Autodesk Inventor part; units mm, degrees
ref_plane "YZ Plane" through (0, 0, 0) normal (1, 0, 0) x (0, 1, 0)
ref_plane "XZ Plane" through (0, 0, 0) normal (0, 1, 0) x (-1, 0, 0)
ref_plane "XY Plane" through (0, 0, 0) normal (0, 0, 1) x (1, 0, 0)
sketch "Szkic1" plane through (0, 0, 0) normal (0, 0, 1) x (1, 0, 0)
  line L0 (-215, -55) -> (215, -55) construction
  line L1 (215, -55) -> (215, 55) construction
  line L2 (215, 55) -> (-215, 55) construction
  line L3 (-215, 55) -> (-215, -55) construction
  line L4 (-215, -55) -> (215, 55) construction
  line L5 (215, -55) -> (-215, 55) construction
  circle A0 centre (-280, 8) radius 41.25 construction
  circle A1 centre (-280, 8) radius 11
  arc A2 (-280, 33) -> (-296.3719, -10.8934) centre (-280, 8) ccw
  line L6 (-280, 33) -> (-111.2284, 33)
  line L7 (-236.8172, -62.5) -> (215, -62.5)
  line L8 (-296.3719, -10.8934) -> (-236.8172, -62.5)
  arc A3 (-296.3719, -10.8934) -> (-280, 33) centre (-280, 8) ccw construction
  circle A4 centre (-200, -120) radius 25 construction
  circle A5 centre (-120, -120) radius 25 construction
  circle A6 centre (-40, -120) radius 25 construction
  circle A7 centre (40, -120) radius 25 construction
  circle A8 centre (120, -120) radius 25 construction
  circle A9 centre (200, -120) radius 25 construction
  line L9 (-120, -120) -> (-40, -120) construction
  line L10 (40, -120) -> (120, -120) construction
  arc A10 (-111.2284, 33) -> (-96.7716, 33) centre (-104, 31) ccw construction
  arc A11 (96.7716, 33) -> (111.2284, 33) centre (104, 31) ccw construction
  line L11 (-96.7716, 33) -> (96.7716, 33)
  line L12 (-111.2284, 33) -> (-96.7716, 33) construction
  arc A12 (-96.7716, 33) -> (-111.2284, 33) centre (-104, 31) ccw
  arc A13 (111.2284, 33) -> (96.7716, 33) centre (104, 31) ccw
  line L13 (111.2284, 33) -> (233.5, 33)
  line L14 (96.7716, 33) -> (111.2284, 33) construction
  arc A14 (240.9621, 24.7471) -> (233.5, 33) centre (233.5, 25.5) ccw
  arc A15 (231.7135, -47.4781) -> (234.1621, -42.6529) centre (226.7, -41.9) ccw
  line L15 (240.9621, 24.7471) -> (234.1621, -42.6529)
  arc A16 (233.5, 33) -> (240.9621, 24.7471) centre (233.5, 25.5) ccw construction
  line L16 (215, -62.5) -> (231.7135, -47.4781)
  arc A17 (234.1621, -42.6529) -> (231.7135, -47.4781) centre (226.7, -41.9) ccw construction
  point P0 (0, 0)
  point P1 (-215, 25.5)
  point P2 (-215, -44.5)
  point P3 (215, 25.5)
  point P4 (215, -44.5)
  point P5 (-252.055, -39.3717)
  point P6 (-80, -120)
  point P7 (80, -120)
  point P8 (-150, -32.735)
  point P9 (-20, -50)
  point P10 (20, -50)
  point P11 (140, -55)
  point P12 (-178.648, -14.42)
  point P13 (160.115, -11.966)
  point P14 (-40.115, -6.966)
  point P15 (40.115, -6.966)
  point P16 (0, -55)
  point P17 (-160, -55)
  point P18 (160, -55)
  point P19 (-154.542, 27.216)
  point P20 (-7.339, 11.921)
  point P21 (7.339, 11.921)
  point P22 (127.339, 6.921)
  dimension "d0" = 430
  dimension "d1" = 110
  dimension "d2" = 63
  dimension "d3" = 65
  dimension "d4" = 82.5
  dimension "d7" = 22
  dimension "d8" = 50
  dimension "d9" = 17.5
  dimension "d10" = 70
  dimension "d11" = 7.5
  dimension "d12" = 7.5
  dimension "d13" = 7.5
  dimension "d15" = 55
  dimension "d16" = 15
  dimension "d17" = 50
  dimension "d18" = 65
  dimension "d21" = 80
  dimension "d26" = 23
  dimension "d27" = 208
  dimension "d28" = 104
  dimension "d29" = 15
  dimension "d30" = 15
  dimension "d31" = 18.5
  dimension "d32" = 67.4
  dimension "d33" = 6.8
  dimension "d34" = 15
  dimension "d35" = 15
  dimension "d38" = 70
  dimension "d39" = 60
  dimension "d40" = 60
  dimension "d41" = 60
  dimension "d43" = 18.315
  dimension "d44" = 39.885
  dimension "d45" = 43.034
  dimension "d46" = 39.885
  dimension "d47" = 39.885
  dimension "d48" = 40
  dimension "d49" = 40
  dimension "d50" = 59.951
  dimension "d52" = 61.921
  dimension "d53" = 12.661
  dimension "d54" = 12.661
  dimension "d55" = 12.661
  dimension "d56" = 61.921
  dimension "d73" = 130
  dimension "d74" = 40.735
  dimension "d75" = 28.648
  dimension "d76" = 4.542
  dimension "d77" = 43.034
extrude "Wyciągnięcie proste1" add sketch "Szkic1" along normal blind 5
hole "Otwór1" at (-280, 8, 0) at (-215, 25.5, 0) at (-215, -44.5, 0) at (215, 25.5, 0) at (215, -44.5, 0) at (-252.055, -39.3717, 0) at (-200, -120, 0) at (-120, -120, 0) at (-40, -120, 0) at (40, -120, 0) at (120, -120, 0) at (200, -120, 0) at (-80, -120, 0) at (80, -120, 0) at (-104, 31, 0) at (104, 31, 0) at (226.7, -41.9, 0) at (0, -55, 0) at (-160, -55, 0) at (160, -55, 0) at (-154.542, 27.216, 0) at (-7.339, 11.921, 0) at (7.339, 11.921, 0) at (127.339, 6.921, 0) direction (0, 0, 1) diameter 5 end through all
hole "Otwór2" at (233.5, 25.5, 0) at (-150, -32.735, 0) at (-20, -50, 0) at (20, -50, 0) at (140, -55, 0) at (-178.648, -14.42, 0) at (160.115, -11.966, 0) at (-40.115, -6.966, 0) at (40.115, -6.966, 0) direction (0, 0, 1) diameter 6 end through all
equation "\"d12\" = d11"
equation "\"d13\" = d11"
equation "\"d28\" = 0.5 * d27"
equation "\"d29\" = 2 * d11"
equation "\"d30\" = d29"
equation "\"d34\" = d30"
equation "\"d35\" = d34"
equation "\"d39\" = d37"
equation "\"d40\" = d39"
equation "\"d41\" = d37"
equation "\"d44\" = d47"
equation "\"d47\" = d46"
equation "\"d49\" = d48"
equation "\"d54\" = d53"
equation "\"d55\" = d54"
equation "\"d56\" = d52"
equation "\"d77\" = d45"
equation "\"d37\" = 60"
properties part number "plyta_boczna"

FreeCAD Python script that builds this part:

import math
import FreeCAD as App
import Part
import Sketcher
from FreeCAD import Vector
Q = App.Units.Quantity

doc = App.newDocument("Part")
body = doc.addObject("PartDesign::Body", "Body")

sketch1 = doc.addObject("Sketcher::SketchObject", "Sketch")
body.addObject(sketch1)
sketch1.AttachmentSupport = (doc.XY_Plane, [""])
sketch1.MapMode = "FlatFace"
sketch1.addGeometry(Part.LineSegment(Vector(-111, 33, 0), Vector(-280, 33, 0)), False)
sketch1.addGeometry(Part.ArcOfCircle(Part.Circle(Vector(-280, 8, 0), Vector(0, 0, 1), 25), math.radians(90), math.radians(229)), False)
sketch1.addGeometry(Part.LineSegment(Vector(-296, -11, 0), Vector(-237, -62, 0)), False)
sketch1.addGeometry(Part.LineSegment(Vector(-237, -62, 0), Vector(215, -62, 0)), False)
sketch1.addGeometry(Part.LineSegment(Vector(215, -62, 0), Vector(232, -47, 0)), False)
sketch1.addGeometry(Part.ArcOfCircle(Part.Circle(Vector(227, -42, 0), Vector(0, 0, 1), 7), math.radians(-48), math.radians(-6)), False)
sketch1.addGeometry(Part.LineSegment(Vector(234, -43, 0), Vector(241, 25, 0)), False)
sketch1.addGeometry(Part.ArcOfCircle(Part.Circle(Vector(234, 26, 0), Vector(0, 0, 1), 8), math.radians(-6), math.radians(90)), False)
sketch1.addGeometry(Part.LineSegment(Vector(234, 33, 0), Vector(111, 33, 0)), False)
sketch1.addGeometry(Part.ArcOfCircle(Part.Circle(Vector(104, 31, 0), Vector(0, 0, 1), 7), math.radians(15), math.radians(165)), False)
sketch1.addGeometry(Part.LineSegment(Vector(97, 33, 0), Vector(-97, 33, 0)), False)
sketch1.addGeometry(Part.ArcOfCircle(Part.Circle(Vector(-104, 31, 0), Vector(0, 0, 1), 7), math.radians(15), math.radians(165)), False)
sketch1.addGeometry(Part.Circle(Vector(-280, 8, 0), Vector(0, 0, 1), 11), False)
sketch1.addConstraint(Sketcher.Constraint("Tangent", 0, 2, 1, 1))
sketch1.addConstraint(Sketcher.Constraint("Tangent", 1, 2, 2, 1))
sketch1.addConstraint(Sketcher.Constraint("Coincident", 2, 2, 3, 1))
sketch1.addConstraint(Sketcher.Constraint("Coincident", 3, 2, 4, 1))
sketch1.addConstraint(Sketcher.Constraint("Tangent", 4, 2, 5, 1))
sketch1.addConstraint(Sketcher.Constraint("Tangent", 5, 2, 6, 1))
sketch1.addConstraint(Sketcher.Constraint("Tangent", 6, 2, 7, 1))
sketch1.addConstraint(Sketcher.Constraint("Tangent", 7, 2, 8, 1))
sketch1.addConstraint(Sketcher.Constraint("Coincident", 8, 2, 9, 1))
sketch1.addConstraint(Sketcher.Constraint("Coincident", 9, 2, 10, 1))
sketch1.addConstraint(Sketcher.Constraint("Coincident", 10, 2, 11, 1))
sketch1.addConstraint(Sketcher.Constraint("Coincident", 11, 2, 0, 1))
sketch1.addConstraint(Sketcher.Constraint("Horizontal", 0))
sketch1.addConstraint(Sketcher.Constraint("Horizontal", 3))
sketch1.addConstraint(Sketcher.Constraint("Horizontal", 8))
sketch1.addConstraint(Sketcher.Constraint("Horizontal", 10))
sketch1.addConstraint(Sketcher.Constraint("Coincident", 12, 3, 1, 3))
sketch1.addConstraint(Sketcher.Constraint("Equal", 5, 7))
sketch1.addConstraint(Sketcher.Constraint("Equal", 7, 9))
sketch1.addConstraint(Sketcher.Constraint("Equal", 9, 11))
sketch1.addConstraint(Sketcher.Constraint("Symmetric", 9, 3, 11, 3, -2))
sketch1.addConstraint(Sketcher.Constraint("Horizontal", 0, 2, 7, 2))
sketch1.addConstraint(Sketcher.Constraint("Horizontal", 8, 2, 9, 2))
sketch1.addConstraint(Sketcher.Constraint("Diameter", 12, Q("22 mm")))
sketch1.addConstraint(Sketcher.Constraint("Radius", 1, Q("25 mm")))
sketch1.addConstraint(Sketcher.Constraint("Radius", 5, Q("7.5 mm")))
sketch1.addConstraint(Sketcher.Constraint("DistanceX", -1, 1, 9, 3, Q("104 mm")))
sketch1.addConstraint(Sketcher.Constraint("DistanceY", 1, 3, 9, 3, Q("23 mm")))
sketch1.addConstraint(Sketcher.Constraint("DistanceX", 5, 3, 7, 3, Q("6.8 mm")))
sketch1.addConstraint(Sketcher.Constraint("DistanceY", 5, 3, 7, 3, Q("67.4 mm")))
sketch1.addConstraint(Sketcher.Constraint("DistanceX", 3, 2, 7, 3, Q("18.5 mm")))
sketch1.addConstraint(Sketcher.Constraint("DistanceX", 1, 3, -1, 1, Q("280 mm")))
sketch1.addConstraint(Sketcher.Constraint("DistanceY", -1, 1, 1, 3, Q("8 mm")))
sketch1.addConstraint(Sketcher.Constraint("DistanceX", -1, 1, 3, 2, Q("215 mm")))
sketch1.addConstraint(Sketcher.Constraint("DistanceY", 3, 2, 7, 3, Q("88 mm")))
sketch1.addConstraint(Sketcher.Constraint("Angle", 2, Q("-40.9103 deg")))
pad1 = doc.addObject("PartDesign::Pad", "Pad")
body.addObject(pad1)
pad1.Profile = sketch1
pad1.Length = 5

sketch2 = doc.addObject("Sketcher::SketchObject", "Sketch001")
body.addObject(sketch2)
sketch2.AttachmentSupport = (doc.XY_Plane, [""])
sketch2.MapMode = "FlatFace"
sketch2.addGeometry(Part.Circle(Vector(-280, 8, 0), Vector(0, 0, 1), 2.5), False)
sketch2.addGeometry(Part.Circle(Vector(-215, 25.5, 0), Vector(0, 0, 1), 2.5), False)
sketch2.addGeometry(Part.Circle(Vector(-215, -44.5, 0), Vector(0, 0, 1), 2.5), False)
sketch2.addGeometry(Part.Circle(Vector(215, 25.5, 0), Vector(0, 0, 1), 2.5), False)
sketch2.addGeometry(Part.Circle(Vector(215, -44.5, 0), Vector(0, 0, 1), 2.5), False)
sketch2.addGeometry(Part.Circle(Vector(-252.1, -39.4, 0), Vector(0, 0, 1), 2.5), False)
sketch2.addGeometry(Part.Circle(Vector(-200, -120, 0), Vector(0, 0, 1), 2.5), False)
sketch2.addGeometry(Part.Circle(Vector(-120, -120, 0), Vector(0, 0, 1), 2.5), False)
sketch2.addGeometry(Part.Circle(Vector(-40, -120, 0), Vector(0, 0, 1), 2.5), False)
sketch2.addGeometry(Part.Circle(Vector(40, -120, 0), Vector(0, 0, 1), 2.5), False)
sketch2.addGeometry(Part.Circle(Vector(120, -120, 0), Vector(0, 0, 1), 2.5), False)
sketch2.addGeometry(Part.Circle(Vector(200, -120, 0), Vector(0, 0, 1), 2.5), False)
sketch2.addGeometry(Part.Circle(Vector(-80, -120, 0), Vector(0, 0, 1), 2.5), False)
sketch2.addGeometry(Part.Circle(Vector(80, -120, 0), Vector(0, 0, 1), 2.5), False)
sketch2.addGeometry(Part.Circle(Vector(-104, 31, 0), Vector(0, 0, 1), 2.5), False)
sketch2.addGeometry(Part.Circle(Vector(104, 31, 0), Vector(0, 0, 1), 2.5), False)
sketch2.addGeometry(Part.Circle(Vector(226.7, -41.9, 0), Vector(0, 0, 1), 2.5), False)
sketch2.addGeometry(Part.Circle(Vector(0, -55, 0), Vector(0, 0, 1), 2.5), False)
sketch2.addGeometry(Part.Circle(Vector(-160, -55, 0), Vector(0, 0, 1), 2.5), False)
sketch2.addGeometry(Part.Circle(Vector(160, -55, 0), Vector(0, 0, 1), 2.5), False)
sketch2.addGeometry(Part.Circle(Vector(-154.5, 27.2, 0), Vector(0, 0, 1), 2.5), False)
sketch2.addGeometry(Part.Circle(Vector(-7.3, 11.9, 0), Vector(0, 0, 1), 2.5), False)
sketch2.addGeometry(Part.Circle(Vector(7.3, 11.9, 0), Vector(0, 0, 1), 2.5), False)
sketch2.addGeometry(Part.Circle(Vector(127.3, 6.9, 0), Vector(0, 0, 1), 2.5), False)
sketch2.addConstraint(Sketcher.Constraint("Equal", 0, 1))
sketch2.addConstraint(Sketcher.Constraint("Equal", 1, 2))
sketch2.addConstraint(Sketcher.Constraint("Equal", 2, 3))
sketch2.addConstraint(Sketcher.Constraint("Equal", 3, 4))
sketch2.addConstraint(Sketcher.Constraint("Equal", 4, 5))
sketch2.addConstraint(Sketcher.Constraint("Equal", 5, 6))
sketch2.addConstraint(Sketcher.Constraint("Equal", 6, 7))
sketch2.addConstraint(Sketcher.Constraint("Equal", 7, 8))
sketch2.addConstraint(Sketcher.Constraint("Equal", 8, 9))
sketch2.addConstraint(Sketcher.Constraint("Equal", 9, 10))
sketch2.addConstraint(Sketcher.Constraint("Equal", 10, 11))
sketch2.addConstraint(Sketcher.Constraint("Equal", 11, 12))
sketch2.addConstraint(Sketcher.Constraint("Equal", 12, 13))
sketch2.addConstraint(Sketcher.Constraint("Equal", 13, 14))
sketch2.addConstraint(Sketcher.Constraint("Equal", 14, 15))
sketch2.addConstraint(Sketcher.Constraint("Equal", 15, 16))
sketch2.addConstraint(Sketcher.Constraint("Equal", 16, 17))
sketch2.addConstraint(Sketcher.Constraint("Equal", 17, 18))
sketch2.addConstraint(Sketcher.Constraint("Equal", 18, 19))
sketch2.addConstraint(Sketcher.Constraint("Equal", 19, 20))
sketch2.addConstraint(Sketcher.Constraint("Equal", 20, 21))
sketch2.addConstraint(Sketcher.Constraint("Equal", 21, 22))
sketch2.addConstraint(Sketcher.Constraint("Equal", 22, 23))
sketch2.addConstraint(Sketcher.Constraint("Symmetric", 1, 3, 3, 3, -2))
sketch2.addConstraint(Sketcher.Constraint("Symmetric", 2, 3, 4, 3, -2))
sketch2.addConstraint(Sketcher.Constraint("Symmetric", 8, 3, 9, 3, -2))
sketch2.addConstraint(Sketcher.Constraint("Symmetric", 7, 3, 10, 3, -2))
sketch2.addConstraint(Sketcher.Constraint("Symmetric", 6, 3, 11, 3, -2))
sketch2.addConstraint(Sketcher.Constraint("Symmetric", 12, 3, 13, 3, -2))
sketch2.addConstraint(Sketcher.Constraint("Symmetric", 14, 3, 15, 3, -2))
sketch2.addConstraint(Sketcher.Constraint("Symmetric", 18, 3, 19, 3, -2))
sketch2.addConstraint(Sketcher.Constraint("Symmetric", 21, 3, 22, 3, -2))
sketch2.addConstraint(Sketcher.Constraint("PointOnObject", 17, 3, -2))
sketch2.addConstraint(Sketcher.Constraint("Horizontal", 6, 3, 7, 3))
sketch2.addConstraint(Sketcher.Constraint("Horizontal", 7, 3, 8, 3))
sketch2.addConstraint(Sketcher.Constraint("Horizontal", 11, 3, 12, 3))
sketch2.addConstraint(Sketcher.Constraint("Horizontal", 17, 3, 18, 3))
sketch2.addConstraint(Sketcher.Constraint("Vertical", 1, 3, 2, 3))
sketch2.addConstraint(Sketcher.Constraint("Diameter", 0, Q("5 mm")))
sketch2.addConstraint(Sketcher.Constraint("DistanceX", 0, 3, -1, 1, Q("280 mm")))
sketch2.addConstraint(Sketcher.Constraint("DistanceY", -1, 1, 0, 3, Q("8 mm")))
sketch2.addConstraint(Sketcher.Constraint("DistanceX", 1, 3, -1, 1, Q("215 mm")))
sketch2.addConstraint(Sketcher.Constraint("DistanceX", 6, 3, -1, 1, Q("200 mm")))
sketch2.addConstraint(Sketcher.Constraint("DistanceY", 6, 3, -1, 1, Q("120 mm")))
sketch2.addConstraint(Sketcher.Constraint("DistanceX", 7, 3, -1, 1, Q("120 mm")))
sketch2.addConstraint(Sketcher.Constraint("DistanceX", 8, 3, -1, 1, Q("40 mm")))
sketch2.addConstraint(Sketcher.Constraint("DistanceX", 12, 3, -1, 1, Q("80 mm")))
sketch2.addConstraint(Sketcher.Constraint("DistanceX", 14, 3, -1, 1, Q("104 mm")))
sketch2.addConstraint(Sketcher.Constraint("DistanceY", -1, 1, 14, 3, Q("31 mm")))
sketch2.addConstraint(Sketcher.Constraint("DistanceY", 17, 3, -1, 1, Q("55 mm")))
sketch2.addConstraint(Sketcher.Constraint("DistanceX", 18, 3, -1, 1, Q("160 mm")))
sketch2.addConstraint(Sketcher.Constraint("DistanceY", 2, 3, 1, 3, Q("70 mm")))
sketch2.addConstraint(Sketcher.Constraint("DistanceY", -1, 1, 1, 3, Q("25.5 mm")))
sketch2.addConstraint(Sketcher.Constraint("DistanceX", -1, 1, 16, 3, Q("226.7 mm")))
sketch2.addConstraint(Sketcher.Constraint("DistanceY", 16, 3, -1, 1, Q("41.9 mm")))
sketch2.addConstraint(Sketcher.Constraint("DistanceX", 5, 3, -1, 1, Q("252.055 mm")))
sketch2.addConstraint(Sketcher.Constraint("DistanceX", 20, 3, -1, 1, Q("154.542 mm")))
sketch2.addConstraint(Sketcher.Constraint("DistanceY", -1, 1, 20, 3, Q("27.216 mm")))
sketch2.addConstraint(Sketcher.Constraint("DistanceX", 21, 3, -1, 1, Q("7.339 mm")))
sketch2.addConstraint(Sketcher.Constraint("DistanceY", -1, 1, 21, 3, Q("11.921 mm")))
sketch2.addConstraint(Sketcher.Constraint("DistanceX", -1, 1, 23, 3, Q("127.339 mm")))
sketch2.addConstraint(Sketcher.Constraint("DistanceY", -1, 1, 23, 3, Q("6.921 mm")))
sketch2.addConstraint(Sketcher.Constraint("DistanceY", 5, 3, -1, 1, Q("39.3717 mm")))
doc.recompute()
hole = doc.addObject("PartDesign::Hole", "Hole")
body.addObject(hole)
hole.Profile = sketch2
hole.ThreadType = "None"
hole.Diameter = 5
hole.DepthType = "ThroughAll"
hole.Reversed = True

sketch3 = doc.addObject("Sketcher::SketchObject", "Sketch002")
body.addObject(sketch3)
sketch3.AttachmentSupport = (doc.XY_Plane, [""])
sketch3.MapMode = "FlatFace"
sketch3.addGeometry(Part.Circle(Vector(233.5, 25.5, 0), Vector(0, 0, 1), 3), False)
sketch3.addGeometry(Part.Circle(Vector(-150, -32.7, 0), Vector(0, 0, 1), 3), False)
sketch3.addGeometry(Part.Circle(Vector(-20, -50, 0), Vector(0, 0, 1), 3), False)
sketch3.addGeometry(Part.Circle(Vector(20, -50, 0), Vector(0, 0, 1), 3), False)
sketch3.addGeometry(Part.Circle(Vector(140, -55, 0), Vector(0, 0, 1), 3), False)
sketch3.addGeometry(Part.Circle(Vector(-178.6, -14.4, 0), Vector(0, 0, 1), 3), False)
sketch3.addGeometry(Part.Circle(Vector(160.1, -12, 0), Vector(0, 0, 1), 3), False)
sketch3.addGeometry(Part.Circle(Vector(-40.1, -7, 0), Vector(0, 0, 1), 3), False)
sketch3.addGeometry(Part.Circle(Vector(40.1, -7, 0), Vector(0, 0, 1), 3), False)
sketch3.addConstraint(Sketcher.Constraint("Equal", 0, 1))
sketch3.addConstraint(Sketcher.Constraint("Equal", 1, 2))
sketch3.addConstraint(Sketcher.Constraint("Equal", 2, 3))
sketch3.addConstraint(Sketcher.Constraint("Equal", 3, 4))
sketch3.addConstraint(Sketcher.Constraint("Equal", 4, 5))
sketch3.addConstraint(Sketcher.Constraint("Equal", 5, 6))
sketch3.addConstraint(Sketcher.Constraint("Equal", 6, 7))
sketch3.addConstraint(Sketcher.Constraint("Equal", 7, 8))
sketch3.addConstraint(Sketcher.Constraint("Symmetric", 2, 3, 3, 3, -2))
sketch3.addConstraint(Sketcher.Constraint("Symmetric", 7, 3, 8, 3, -2))
sketch3.addConstraint(Sketcher.Constraint("Diameter", 0, Q("6 mm")))
sketch3.addConstraint(Sketcher.Constraint("DistanceX", 1, 3, -1, 1, Q("150 mm")))
sketch3.addConstraint(Sketcher.Constraint("DistanceX", 2, 3, -1, 1, Q("20 mm")))
sketch3.addConstraint(Sketcher.Constraint("DistanceY", 2, 3, -1, 1, Q("50 mm")))
sketch3.addConstraint(Sketcher.Constraint("DistanceX", -1, 1, 4, 3, Q("140 mm")))
sketch3.addConstraint(Sketcher.Constraint("DistanceY", 4, 3, -1, 1, Q("55 mm")))
sketch3.addConstraint(Sketcher.Constraint("DistanceX", 8, 3, 6, 3, Q("120 mm")))
sketch3.addConstraint(Sketcher.Constraint("DistanceY", 6, 3, 8, 3, Q("5 mm")))
sketch3.addConstraint(Sketcher.Constraint("DistanceX", -1, 1, 0, 3, Q("233.5 mm")))
sketch3.addConstraint(Sketcher.Constraint("DistanceY", -1, 1, 0, 3, Q("25.5 mm")))
sketch3.addConstraint(Sketcher.Constraint("DistanceY", 5, 3, -1, 1, Q("14.42 mm")))
sketch3.addConstraint(Sketcher.Constraint("DistanceX", 7, 3, 8, 3, Q("80.23 mm")))
sketch3.addConstraint(Sketcher.Constraint("DistanceY", 1, 3, -1, 1, Q("32.735 mm")))
sketch3.addConstraint(Sketcher.Constraint("DistanceX", 5, 3, -1, 1, Q("178.648 mm")))
sketch3.addConstraint(Sketcher.Constraint("DistanceY", 6, 3, -1, 1, Q("11.966 mm")))
doc.recompute()
hole2 = doc.addObject("PartDesign::Hole", "Hole001")
body.addObject(hole2)
hole2.Profile = sketch3
hole2.ThreadType = "None"
hole2.Diameter = 6
hole2.DepthType = "ThroughAll"
hole2.Reversed = True

doc.recompute()
